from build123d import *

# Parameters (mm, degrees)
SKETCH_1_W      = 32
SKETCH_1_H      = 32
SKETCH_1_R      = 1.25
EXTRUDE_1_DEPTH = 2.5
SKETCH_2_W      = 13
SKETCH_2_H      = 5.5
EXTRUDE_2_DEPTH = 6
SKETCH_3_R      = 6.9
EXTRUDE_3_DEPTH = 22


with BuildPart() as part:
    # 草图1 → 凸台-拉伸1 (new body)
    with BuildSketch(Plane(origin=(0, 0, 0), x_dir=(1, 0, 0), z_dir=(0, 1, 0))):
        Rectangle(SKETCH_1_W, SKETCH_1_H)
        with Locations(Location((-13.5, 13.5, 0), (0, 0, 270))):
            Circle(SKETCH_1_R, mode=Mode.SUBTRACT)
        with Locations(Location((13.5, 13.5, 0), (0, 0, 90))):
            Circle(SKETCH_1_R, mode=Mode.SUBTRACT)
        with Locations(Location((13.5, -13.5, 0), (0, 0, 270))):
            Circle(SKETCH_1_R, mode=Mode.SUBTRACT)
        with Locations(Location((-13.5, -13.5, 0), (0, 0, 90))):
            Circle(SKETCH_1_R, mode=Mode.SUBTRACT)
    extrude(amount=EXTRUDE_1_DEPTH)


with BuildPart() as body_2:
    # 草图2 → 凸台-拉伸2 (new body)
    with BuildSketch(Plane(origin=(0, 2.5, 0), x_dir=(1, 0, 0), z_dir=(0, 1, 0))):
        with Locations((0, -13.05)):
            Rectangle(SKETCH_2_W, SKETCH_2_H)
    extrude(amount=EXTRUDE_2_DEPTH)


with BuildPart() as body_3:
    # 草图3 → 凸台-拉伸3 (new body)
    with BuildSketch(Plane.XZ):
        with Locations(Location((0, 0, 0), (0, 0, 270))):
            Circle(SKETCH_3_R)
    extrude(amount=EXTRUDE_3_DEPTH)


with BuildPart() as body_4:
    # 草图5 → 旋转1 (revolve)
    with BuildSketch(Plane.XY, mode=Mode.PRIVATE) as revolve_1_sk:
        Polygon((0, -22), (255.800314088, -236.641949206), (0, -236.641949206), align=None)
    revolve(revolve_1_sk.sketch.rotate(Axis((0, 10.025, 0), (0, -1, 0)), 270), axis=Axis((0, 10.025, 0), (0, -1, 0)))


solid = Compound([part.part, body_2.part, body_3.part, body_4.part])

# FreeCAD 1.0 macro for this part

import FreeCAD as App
import Part
import Sketcher
from FreeCAD import Vector
Q = App.Units.Quantity


def add_polygon(sketch, points):
    """Adds a closed chain of lines whose ends are joined by coincident constraints."""
    first, n = sketch.GeometryCount, len(points)
    for a, b in zip(points, points[1:] + points[:1]):
        sketch.addGeometry(Part.LineSegment(App.Vector(*a, 0), App.Vector(*b, 0)), False)
    for i in range(n):
        sketch.addConstraint(Sketcher.Constraint("Coincident", first + i, 2, first + (i + 1) % n, 1))

doc = App.newDocument("Part")
body = doc.addObject("PartDesign::Body", "Body")

# Sketch on XZ plane
sketch1 = body.newObject("Sketcher::SketchObject", "Sketch")
sketch1.AttachmentSupport = (doc.getObject("XZ_Plane"), [""])
sketch1.MapMode = "FlatFace"
add_polygon(sketch1, [(-16, -16), (-16, 16), (16, 16), (16, -16)])  # lines 0-3
sketch1.addGeometry(Part.Circle(Vector(-13.5, 13.5, 0), Vector(0, 0, 1), 1.2), False)  # 4
sketch1.addGeometry(Part.Circle(Vector(13.5, 13.5, 0), Vector(0, 0, 1), 1.2), False)  # 5
sketch1.addGeometry(Part.Circle(Vector(-13.5, -13.5, 0), Vector(0, 0, 1), 1.2), False)  # 6
sketch1.addGeometry(Part.Circle(Vector(13.5, -13.5, 0), Vector(0, 0, 1), 1.2), False)  # 7
sketch1.addConstraint([
    Sketcher.Constraint("Vertical", 0),
    Sketcher.Constraint("Horizontal", 1),
    Sketcher.Constraint("Vertical", 2),
    Sketcher.Constraint("Horizontal", 3),
    Sketcher.Constraint("Equal", 4, 5),
    Sketcher.Constraint("Equal", 5, 6),
    Sketcher.Constraint("Equal", 6, 7),
    Sketcher.Constraint("Symmetric", 5, 3, 6, 3, -1, 1),
    Sketcher.Constraint("Symmetric", 4, 3, 7, 3, -1, 1),
    Sketcher.Constraint("Symmetric", 0, 2, 2, 2, -1, 1),
    Sketcher.Constraint("Symmetric", 4, 3, 5, 3, -2),
    Sketcher.Constraint("Equal", 3, 0),
    Sketcher.Constraint("Diameter", 4, 2.5),
    Sketcher.Constraint("DistanceX", 1, 1, 1, 2, 32.0),
    Sketcher.Constraint("DistanceX", 4, 3, 5, 3, 27.0),
    Sketcher.Constraint("DistanceY", 6, 3, 4, 3, 27.0),
])
pad1 = body.newObject("PartDesign::Pad", "Pad")
pad1.Profile = sketch1
pad1.Length = 2.5
pad1.Reversed = True
body2 = doc.addObject("PartDesign::Body", "Body001")

# Sketch on XZ plane
sketch2 = body2.newObject("Sketcher::SketchObject", "Sketch001")
sketch2.AttachmentSupport = (doc.getObject("XZ_Plane001"), [""])
sketch2.MapMode = "FlatFace"
sketch2.AttachmentOffset = App.Placement(Vector(0, 0, -2.5), App.Rotation())
add_polygon(sketch2, [(-6, 10), (-6, 16), (6, 16), (6, 10)])  # lines 0-3
sketch2.addConstraint([
    Sketcher.Constraint("Vertical", 0),
    Sketcher.Constraint("Horizontal", 1),
    Sketcher.Constraint("Vertical", 2),
    Sketcher.Constraint("Horizontal", 3),
    Sketcher.Constraint("DistanceX", 1, 1, 1, 2, 13.0),
    Sketcher.Constraint("DistanceY", 0, 1, 0, 2, 5.5),
    Sketcher.Constraint("DistanceX", 0, 2, -1, 1, 6.5),
    Sketcher.Constraint("DistanceY", -1, 1, 0, 2, 15.8),
])
pad2 = body2.newObject("PartDesign::Pad", "Pad001")
pad2.Profile = sketch2
pad2.Length = 6
pad2.Reversed = True
body3 = doc.addObject("PartDesign::Body", "Body002")

# Sketch on XZ plane
sketch3 = body3.newObject("Sketcher::SketchObject", "Sketch002")
sketch3.AttachmentSupport = (doc.getObject("XZ_Plane002"), [""])
sketch3.MapMode = "FlatFace"
sketch3.addGeometry(Part.Circle(Vector(0, 0, 0), Vector(0, 0, 1), 7), False)
sketch3.addConstraint([
    Sketcher.Constraint("Coincident", 0, 3, -1, 1),
    Sketcher.Constraint("Diameter", 0, 13.8),
])
pad3 = body3.newObject("PartDesign::Pad", "Pad002")
pad3.Profile = sketch3
pad3.Length = 22
body4 = doc.addObject("PartDesign::Body", "Body003")

# Sketch on XY plane
sketch4 = body4.newObject("Sketcher::SketchObject", "Sketch003")
sketch4.AttachmentSupport = (doc.getObject("XY_Plane003"), [""])
sketch4.MapMode = "FlatFace"
add_polygon(sketch4, [(256, -237), (0, -22), (0, -237)])  # lines 0-2
sketch4.addConstraint([
    Sketcher.Constraint("Vertical", 1),
    Sketcher.Constraint("Horizontal", 2),
    Sketcher.Constraint("PointOnObject", 0, 2, -2),
    Sketcher.Constraint("Angle", 0, Q("140 deg")),
    Sketcher.Constraint("DistanceY", 0, 2, -1, 1, 22.0),
    Sketcher.Constraint("DistanceY", 1, 2, 1, 1, 214.641949),
])
revolution = body4.newObject("PartDesign::Revolution", "Revolution")
revolution.Profile = sketch4
revolution.ReferenceAxis = (sketch4, ["V_Axis"])
revolution.Angle = 360

doc.recompute()
